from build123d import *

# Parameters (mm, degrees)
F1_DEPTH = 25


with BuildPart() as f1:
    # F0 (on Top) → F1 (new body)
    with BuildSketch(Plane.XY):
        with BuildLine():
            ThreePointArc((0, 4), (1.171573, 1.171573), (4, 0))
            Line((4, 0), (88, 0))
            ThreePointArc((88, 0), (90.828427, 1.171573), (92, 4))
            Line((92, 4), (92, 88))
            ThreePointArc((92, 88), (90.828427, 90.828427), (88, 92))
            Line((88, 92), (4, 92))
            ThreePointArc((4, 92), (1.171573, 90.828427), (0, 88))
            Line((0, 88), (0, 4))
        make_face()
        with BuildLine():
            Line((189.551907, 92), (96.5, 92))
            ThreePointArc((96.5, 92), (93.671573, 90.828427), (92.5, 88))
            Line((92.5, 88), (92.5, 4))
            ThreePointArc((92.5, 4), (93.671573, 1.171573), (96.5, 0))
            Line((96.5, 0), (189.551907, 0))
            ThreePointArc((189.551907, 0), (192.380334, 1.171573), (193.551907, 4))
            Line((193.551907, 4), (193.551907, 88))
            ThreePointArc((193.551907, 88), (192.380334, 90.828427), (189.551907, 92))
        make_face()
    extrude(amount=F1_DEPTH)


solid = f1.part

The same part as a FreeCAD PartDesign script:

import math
import FreeCAD as App
import Part
import Sketcher
Q = App.Units.Quantity

doc = App.newDocument("Part")
body = doc.addObject("PartDesign::Body", "Body")
body.AllowCompound = True

sketch1 = body.newObject("Sketcher::SketchObject", "Sketch")
sketch1.AttachmentSupport = (doc.getObject("XY_Plane"), [""])
sketch1.MapMode = "FlatFace"
sketch1.addGeometry(Part.ArcOfCircle(Part.Circle(App.Vector(4, 4, 0), App.Vector(0, 0, 1), 4), math.radians(-180), math.radians(-90)), False)
sketch1.addGeometry(Part.LineSegment(App.Vector(4, 0, 0), App.Vector(88, 0, 0)), False)
sketch1.addGeometry(Part.ArcOfCircle(Part.Circle(App.Vector(88, 4, 0), App.Vector(0, 0, 1), 4), math.radians(-90), math.radians(0)), False)
sketch1.addGeometry(Part.LineSegment(App.Vector(92, 4, 0), App.Vector(92, 88, 0)), False)
sketch1.addGeometry(Part.ArcOfCircle(Part.Circle(App.Vector(88, 88, 0), App.Vector(0, 0, 1), 4), math.radians(0), math.radians(90)), False)
sketch1.addGeometry(Part.LineSegment(App.Vector(88, 92, 0), App.Vector(4, 92, 0)), False)
sketch1.addGeometry(Part.ArcOfCircle(Part.Circle(App.Vector(4, 88, 0), App.Vector(0, 0, 1), 4), math.radians(90), math.radians(180)), False)
sketch1.addGeometry(Part.LineSegment(App.Vector(0, 88, 0), App.Vector(0, 4, 0)), False)
sketch1.addGeometry(Part.LineSegment(App.Vector(189.6, 92, 0), App.Vector(96.5, 92, 0)), False)
sketch1.addGeometry(Part.ArcOfCircle(Part.Circle(App.Vector(96.5, 88, 0), App.Vector(0, 0, 1), 4), math.radians(90), math.radians(180)), False)
sketch1.addGeometry(Part.LineSegment(App.Vector(92.5, 88, 0), App.Vector(92.5, 4, 0)), False)
sketch1.addGeometry(Part.ArcOfCircle(Part.Circle(App.Vector(96.5, 4, 0), App.Vector(0, 0, 1), 4), math.radians(-180), math.radians(-90)), False)
sketch1.addGeometry(Part.LineSegment(App.Vector(96.5, 0, 0), App.Vector(189.6, 0, 0)), False)
sketch1.addGeometry(Part.ArcOfCircle(Part.Circle(App.Vector(189.6, 4, 0), App.Vector(0, 0, 1), 4), math.radians(-90), math.radians(0)), False)
sketch1.addGeometry(Part.LineSegment(App.Vector(193.6, 4, 0), App.Vector(193.6, 88, 0)), False)
sketch1.addGeometry(Part.ArcOfCircle(Part.Circle(App.Vector(189.6, 88, 0), App.Vector(0, 0, 1), 4), math.radians(0), math.radians(90)), False)
sketch1.addConstraint(Sketcher.Constraint("Tangent", 0, 2, 1, 1))
sketch1.addConstraint(Sketcher.Constraint("Tangent", 1, 2, 2, 1))
sketch1.addConstraint(Sketcher.Constraint("Tangent", 2, 2, 3, 1))
sketch1.addConstraint(Sketcher.Constraint("Tangent", 3, 2, 4, 1))
sketch1.addConstraint(Sketcher.Constraint("Tangent", 4, 2, 5, 1))
sketch1.addConstraint(Sketcher.Constraint("Tangent", 5, 2, 6, 1))
sketch1.addConstraint(Sketcher.Constraint("Tangent", 6, 2, 7, 1))
sketch1.addConstraint(Sketcher.Constraint("Tangent", 7, 2, 0, 1))
sketch1.addConstraint(Sketcher.Constraint("Tangent", 8, 2, 9, 1))
sketch1.addConstraint(Sketcher.Constraint("Tangent", 9, 2, 10, 1))
sketch1.addConstraint(Sketcher.Constraint("Tangent", 10, 2, 11, 1))
sketch1.addConstraint(Sketcher.Constraint("Tangent", 11, 2, 12, 1))
sketch1.addConstraint(Sketcher.Constraint("Tangent", 12, 2, 13, 1))
sketch1.addConstraint(Sketcher.Constraint("Tangent", 13, 2, 14, 1))
sketch1.addConstraint(Sketcher.Constraint("Tangent", 14, 2, 15, 1))
sketch1.addConstraint(Sketcher.Constraint("Tangent", 15, 2, 8, 1))
sketch1.addConstraint(Sketcher.Constraint("Horizontal", 1))
sketch1.addConstraint(Sketcher.Constraint("Vertical", 3))
sketch1.addConstraint(Sketcher.Constraint("Horizontal", 5))
sketch1.addConstraint(Sketcher.Constraint("Vertical", 7))
sketch1.addConstraint(Sketcher.Constraint("Horizontal", 8))
sketch1.addConstraint(Sketcher.Constraint("Vertical", 10))
sketch1.addConstraint(Sketcher.Constraint("Horizontal", 12))
sketch1.addConstraint(Sketcher.Constraint("Vertical", 14))
sketch1.addConstraint(Sketcher.Constraint("Equal", 0, 2))
sketch1.addConstraint(Sketcher.Constraint("Equal", 2, 4))
sketch1.addConstraint(Sketcher.Constraint("Equal", 4, 6))
sketch1.addConstraint(Sketcher.Constraint("Equal", 6, 9))
sketch1.addConstraint(Sketcher.Constraint("Equal", 9, 11))
sketch1.addConstraint(Sketcher.Constraint("Equal", 11, 13))
sketch1.addConstraint(Sketcher.Constraint("Equal", 13, 15))
sketch1.addConstraint(Sketcher.Constraint("PointOnObject", 0, 2, -1))
sketch1.addConstraint(Sketcher.Constraint("PointOnObject", 6, 2, -2))
sketch1.addConstraint(Sketcher.Constraint("PointOnObject", 11, 2, -1))
sketch1.addConstraint(Sketcher.Constraint("Horizontal", 6, 3, 9, 3))
sketch1.addConstraint(Sketcher.Constraint("Equal", 5, 3))
sketch1.addConstraint(Sketcher.Constraint("Radius", 0, Q("4 mm")))
sketch1.addConstraint(Sketcher.Constraint("DistanceX", 1, 1, 1, 2, Q("84 mm")))
sketch1.addConstraint(Sketcher.Constraint("DistanceX", -1, 1, 9, 3, Q("96.5 mm")))
sketch1.addConstraint(Sketcher.Constraint("DistanceX", 8, 2, 8, 1, Q("93.051907 mm")))
pad1 = body.newObject("PartDesign::Pad", "Pad")
pad1.Profile = sketch1
pad1.Length = 25

doc.recompute()
